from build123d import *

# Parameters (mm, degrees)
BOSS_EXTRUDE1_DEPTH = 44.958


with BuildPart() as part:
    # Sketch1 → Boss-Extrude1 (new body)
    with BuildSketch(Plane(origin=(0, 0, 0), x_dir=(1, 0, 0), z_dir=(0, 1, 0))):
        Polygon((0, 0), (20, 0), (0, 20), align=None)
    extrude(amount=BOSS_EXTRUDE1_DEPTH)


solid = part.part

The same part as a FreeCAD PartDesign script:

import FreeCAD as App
import Part
import Sketcher

V = App.Vector

doc = App.newDocument("Part")
body = doc.addObject("PartDesign::Body", "Body")

# Sketch on XZ plane
sketch1 = body.newObject("Sketcher::SketchObject", "Sketch")
sketch1.AttachmentSupport = (doc.getObject("XZ_Plane"), [""])
sketch1.MapMode = "FlatFace"
sketch1.addGeometry(Part.LineSegment(V(0, 0, 0), V(20, 0, 0)), False)
sketch1.addGeometry(Part.LineSegment(V(20, 0, 0), V(0, -20, 0)), False)
sketch1.addGeometry(Part.LineSegment(V(0, -20, 0), V(0, 0, 0)), False)
sketch1.addConstraint(Sketcher.Constraint("Coincident", 0, 2, 1, 1))
sketch1.addConstraint(Sketcher.Constraint("Coincident", 1, 2, 2, 1))
sketch1.addConstraint(Sketcher.Constraint("Coincident", 2, 2, 0, 1))
sketch1.addConstraint(Sketcher.Constraint("Horizontal", 0))
sketch1.addConstraint(Sketcher.Constraint("Vertical", 2))
sketch1.addConstraint(Sketcher.Constraint("Coincident", 2, 2, -1, 1))
sketch1.addConstraint(Sketcher.Constraint("Equal", 0, 2))
sketch1.addConstraint(Sketcher.Constraint("DistanceX", 0, 1, 0, 2, 20.0))
pad1 = body.newObject("PartDesign::Pad", "Pad")
pad1.Profile = sketch1
pad1.Length = 44.958
pad1.Reversed = True

doc.recompute()
